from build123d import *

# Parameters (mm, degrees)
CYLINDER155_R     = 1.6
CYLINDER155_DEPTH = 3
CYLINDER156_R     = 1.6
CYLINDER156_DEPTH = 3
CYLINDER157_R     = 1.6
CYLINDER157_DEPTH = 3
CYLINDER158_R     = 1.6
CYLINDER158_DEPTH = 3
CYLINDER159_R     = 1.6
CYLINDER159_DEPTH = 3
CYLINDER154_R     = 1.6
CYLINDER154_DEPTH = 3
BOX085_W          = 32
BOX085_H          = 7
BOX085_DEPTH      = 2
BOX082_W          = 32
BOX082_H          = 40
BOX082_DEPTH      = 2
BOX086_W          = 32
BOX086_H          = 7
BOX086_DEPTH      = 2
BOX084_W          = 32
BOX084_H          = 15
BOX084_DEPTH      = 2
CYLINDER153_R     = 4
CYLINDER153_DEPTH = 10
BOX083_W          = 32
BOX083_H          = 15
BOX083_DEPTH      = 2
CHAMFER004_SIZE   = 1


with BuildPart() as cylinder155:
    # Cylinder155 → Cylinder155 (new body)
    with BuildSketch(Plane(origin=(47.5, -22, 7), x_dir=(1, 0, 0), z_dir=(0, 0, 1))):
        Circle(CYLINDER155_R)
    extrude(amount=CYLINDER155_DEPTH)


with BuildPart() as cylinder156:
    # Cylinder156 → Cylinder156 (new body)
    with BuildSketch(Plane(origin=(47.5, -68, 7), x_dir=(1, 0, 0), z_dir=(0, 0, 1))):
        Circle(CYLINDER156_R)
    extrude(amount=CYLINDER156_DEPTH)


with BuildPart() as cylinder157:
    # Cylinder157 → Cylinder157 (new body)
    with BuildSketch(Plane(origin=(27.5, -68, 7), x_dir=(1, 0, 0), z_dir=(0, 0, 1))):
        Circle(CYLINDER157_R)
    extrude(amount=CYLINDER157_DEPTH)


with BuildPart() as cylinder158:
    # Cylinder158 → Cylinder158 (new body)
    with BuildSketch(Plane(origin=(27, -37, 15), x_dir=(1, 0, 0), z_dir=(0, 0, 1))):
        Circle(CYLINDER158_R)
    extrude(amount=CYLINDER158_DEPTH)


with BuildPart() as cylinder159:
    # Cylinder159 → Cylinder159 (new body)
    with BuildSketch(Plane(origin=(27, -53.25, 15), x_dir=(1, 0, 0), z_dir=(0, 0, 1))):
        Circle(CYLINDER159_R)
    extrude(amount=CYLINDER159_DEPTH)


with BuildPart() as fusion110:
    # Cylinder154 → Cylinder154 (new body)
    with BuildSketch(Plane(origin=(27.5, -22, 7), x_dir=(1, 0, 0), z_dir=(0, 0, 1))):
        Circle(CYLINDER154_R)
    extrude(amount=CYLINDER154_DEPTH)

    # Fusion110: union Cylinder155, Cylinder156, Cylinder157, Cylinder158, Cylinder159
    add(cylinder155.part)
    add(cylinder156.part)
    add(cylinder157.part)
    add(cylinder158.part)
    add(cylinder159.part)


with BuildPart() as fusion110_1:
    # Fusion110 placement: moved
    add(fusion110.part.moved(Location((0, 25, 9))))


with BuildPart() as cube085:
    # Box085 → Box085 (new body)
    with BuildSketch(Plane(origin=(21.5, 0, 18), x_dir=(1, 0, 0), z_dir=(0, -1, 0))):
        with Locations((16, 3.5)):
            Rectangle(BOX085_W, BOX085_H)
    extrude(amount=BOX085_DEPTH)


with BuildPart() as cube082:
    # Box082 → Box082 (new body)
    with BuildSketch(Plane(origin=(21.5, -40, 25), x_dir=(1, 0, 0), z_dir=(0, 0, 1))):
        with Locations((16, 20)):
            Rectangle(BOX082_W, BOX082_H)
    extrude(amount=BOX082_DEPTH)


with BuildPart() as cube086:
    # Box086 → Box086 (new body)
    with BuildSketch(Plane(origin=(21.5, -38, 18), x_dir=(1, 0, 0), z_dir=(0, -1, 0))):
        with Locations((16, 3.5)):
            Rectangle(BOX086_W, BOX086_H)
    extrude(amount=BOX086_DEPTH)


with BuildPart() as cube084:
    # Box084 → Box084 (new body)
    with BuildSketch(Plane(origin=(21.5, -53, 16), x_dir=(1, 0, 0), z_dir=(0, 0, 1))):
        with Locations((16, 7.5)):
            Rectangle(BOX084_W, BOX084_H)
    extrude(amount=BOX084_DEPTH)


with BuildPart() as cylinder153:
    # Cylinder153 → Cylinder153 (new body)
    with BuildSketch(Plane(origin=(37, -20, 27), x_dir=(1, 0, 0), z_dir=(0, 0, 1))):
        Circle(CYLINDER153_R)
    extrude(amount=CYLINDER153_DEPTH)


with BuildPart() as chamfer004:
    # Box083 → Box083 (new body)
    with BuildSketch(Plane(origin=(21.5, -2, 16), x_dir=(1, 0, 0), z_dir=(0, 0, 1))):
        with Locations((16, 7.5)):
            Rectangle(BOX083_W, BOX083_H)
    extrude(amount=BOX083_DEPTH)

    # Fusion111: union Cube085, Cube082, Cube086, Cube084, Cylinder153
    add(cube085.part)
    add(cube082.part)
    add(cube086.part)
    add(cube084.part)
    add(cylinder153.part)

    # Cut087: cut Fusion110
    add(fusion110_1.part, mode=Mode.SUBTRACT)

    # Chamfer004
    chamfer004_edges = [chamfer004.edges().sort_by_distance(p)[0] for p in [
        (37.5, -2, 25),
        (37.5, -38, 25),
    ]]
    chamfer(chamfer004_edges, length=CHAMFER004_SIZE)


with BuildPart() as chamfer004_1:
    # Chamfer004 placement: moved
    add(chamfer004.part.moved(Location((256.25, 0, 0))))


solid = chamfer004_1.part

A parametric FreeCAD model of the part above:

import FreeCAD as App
import Part
import Sketcher

V = App.Vector
Q = App.Units.Quantity


def edges_at(feature, points):
    """Names of the edges that pass closest to the given points."""
    edges = feature.Shape.Edges
    near = lambda p: min(range(len(edges)), key=lambda i: edges[i].distToShape(Part.Vertex(*p))[0])
    return sorted({f"Edge{near(p) + 1}" for p in points})

doc = App.newDocument("Part")
body = doc.addObject("PartDesign::Body", "Body")

sketch1 = body.newObject("Sketcher::SketchObject", "Sketch")
sketch1.AttachmentSupport = (doc.getObject("XY_Plane"), [""])
sketch1.MapMode = "FlatFace"
sketch1.AttachmentOffset = App.Placement(V(0, 0, 7), App.Rotation())
sketch1.addGeometry(Part.Circle(V(47.5, -22, 0), V(0, 0, 1), 1.6), False)
sketch1.addConstraint(Sketcher.Constraint("Diameter", 0, Q("3.2 mm")))
sketch1.addConstraint(Sketcher.Constraint("DistanceY", 0, 3, -1, 1, Q("22 mm")))
sketch1.addConstraint(Sketcher.Constraint("DistanceX", -1, 1, 0, 3, Q("47.5 mm")))
pad1 = body.newObject("PartDesign::Pad", "Pad")
pad1.Profile = sketch1
pad1.Length = 3
body2 = doc.addObject("PartDesign::Body", "Body001")

sketch2 = body2.newObject("Sketcher::SketchObject", "Sketch001")
sketch2.AttachmentSupport = (doc.getObject("XY_Plane001"), [""])
sketch2.MapMode = "FlatFace"
sketch2.AttachmentOffset = App.Placement(V(0, 0, 7), App.Rotation())
sketch2.addGeometry(Part.Circle(V(47.5, -68, 0), V(0, 0, 1), 1.6), False)
sketch2.addConstraint(Sketcher.Constraint("Diameter", 0, Q("3.2 mm")))
sketch2.addConstraint(Sketcher.Constraint("DistanceY", 0, 3, -1, 1, Q("68 mm")))
sketch2.addConstraint(Sketcher.Constraint("DistanceX", -1, 1, 0, 3, Q("47.5 mm")))
pad2 = body2.newObject("PartDesign::Pad", "Pad001")
pad2.Profile = sketch2
pad2.Length = 3
body3 = doc.addObject("PartDesign::Body", "Body002")

sketch3 = body3.newObject("Sketcher::SketchObject", "Sketch002")
sketch3.AttachmentSupport = (doc.getObject("XY_Plane002"), [""])
sketch3.MapMode = "FlatFace"
sketch3.AttachmentOffset = App.Placement(V(0, 0, 7), App.Rotation())
sketch3.addGeometry(Part.Circle(V(27.5, -68, 0), V(0, 0, 1), 1.6), False)
sketch3.addConstraint(Sketcher.Constraint("Diameter", 0, Q("3.2 mm")))
sketch3.addConstraint(Sketcher.Constraint("DistanceY", 0, 3, -1, 1, Q("68 mm")))
sketch3.addConstraint(Sketcher.Constraint("DistanceX", -1, 1, 0, 3, Q("27.5 mm")))
pad3 = body3.newObject("PartDesign::Pad", "Pad002")
pad3.Profile = sketch3
pad3.Length = 3
body4 = doc.addObject("PartDesign::Body", "Body003")

sketch4 = body4.newObject("Sketcher::SketchObject", "Sketch003")
sketch4.AttachmentSupport = (doc.getObject("XY_Plane003"), [""])
sketch4.MapMode = "FlatFace"
sketch4.AttachmentOffset = App.Placement(V(0, 0, 15), App.Rotation())
sketch4.addGeometry(Part.Circle(V(27, -37, 0), V(0, 0, 1), 1.6), False)
sketch4.addConstraint(Sketcher.Constraint("Diameter", 0, Q("3.2 mm")))
sketch4.addConstraint(Sketcher.Constraint("DistanceX", -1, 1, 0, 3, Q("27 mm")))
sketch4.addConstraint(Sketcher.Constraint("DistanceY", 0, 3, -1, 1, Q("37 mm")))
pad4 = body4.newObject("PartDesign::Pad", "Pad003")
pad4.Profile = sketch4
pad4.Length = 3
body5 = doc.addObject("PartDesign::Body", "Body004")

sketch5 = body5.newObject("Sketcher::SketchObject", "Sketch004")
sketch5.AttachmentSupport = (doc.getObject("XY_Plane004"), [""])
sketch5.MapMode = "FlatFace"
sketch5.AttachmentOffset = App.Placement(V(0, 0, 15), App.Rotation())
sketch5.addGeometry(Part.Circle(V(27, -53.2, 0), V(0, 0, 1), 1.6), False)
sketch5.addConstraint(Sketcher.Constraint("Diameter", 0, Q("3.2 mm")))
sketch5.addConstraint(Sketcher.Constraint("DistanceX", -1, 1, 0, 3, Q("27 mm")))
sketch5.addConstraint(Sketcher.Constraint("DistanceY", 0, 3, -1, 1, Q("53.25 mm")))
pad5 = body5.newObject("PartDesign::Pad", "Pad004")
pad5.Profile = sketch5
pad5.Length = 3
body6 = doc.addObject("PartDesign::Body", "Body005")
body6.AllowCompound = True

sketch6 = body6.newObject("Sketcher::SketchObject", "Sketch005")
sketch6.AttachmentSupport = (doc.getObject("XY_Plane005"), [""])
sketch6.MapMode = "FlatFace"
sketch6.AttachmentOffset = App.Placement(V(0, 0, 7), App.Rotation())
sketch6.addGeometry(Part.Circle(V(27.5, -22, 0), V(0, 0, 1), 1.6), False)
sketch6.addConstraint(Sketcher.Constraint("Diameter", 0, Q("3.2 mm")))
sketch6.addConstraint(Sketcher.Constraint("DistanceY", 0, 3, -1, 1, Q("22 mm")))
sketch6.addConstraint(Sketcher.Constraint("DistanceX", -1, 1, 0, 3, Q("27.5 mm")))
pad6 = body6.newObject("PartDesign::Pad", "Pad005")
pad6.Profile = sketch6
pad6.Length = 3
doc.recompute()

boolean = body6.newObject("PartDesign::Boolean", "Boolean")
boolean.Type = "Fuse"
boolean.addObjects([body])
doc.recompute()

boolean2 = body6.newObject("PartDesign::Boolean", "Boolean001")
boolean2.Type = "Fuse"
boolean2.addObjects([body2])
doc.recompute()

boolean3 = body6.newObject("PartDesign::Boolean", "Boolean002")
boolean3.Type = "Fuse"
boolean3.addObjects([body3])
doc.recompute()

boolean4 = body6.newObject("PartDesign::Boolean", "Boolean003")
boolean4.Type = "Fuse"
boolean4.addObjects([body4])
doc.recompute()

boolean5 = body6.newObject("PartDesign::Boolean", "Boolean004")
boolean5.Type = "Fuse"
boolean5.addObjects([body5])
body7 = doc.addObject("PartDesign::Body", "Body006")
body7.AllowCompound = True
doc.recompute()

body6.Placement = App.Placement(V(0, 25, 9), App.Rotation(V(0, 0, 1), 0))
boolean6 = body7.newObject("PartDesign::Boolean", "Boolean005")
boolean6.Type = "Fuse"
boolean6.addObjects([body6])
body8 = doc.addObject("PartDesign::Body", "Body007")

sketch7 = body8.newObject("Sketcher::SketchObject", "Sketch006")
sketch7.AttachmentSupport = (doc.getObject("XZ_Plane007"), [""])
sketch7.MapMode = "FlatFace"
sketch7.addGeometry(Part.LineSegment(V(22, 25, 0), V(22, 18, 0)), False)
sketch7.addGeometry(Part.LineSegment(V(22, 18, 0), V(54, 18, 0)), False)
sketch7.addGeometry(Part.LineSegment(V(54, 18, 0), V(54, 25, 0)), False)
sketch7.addGeometry(Part.LineSegment(V(54, 25, 0), V(22, 25, 0)), False)
sketch7.addConstraint(Sketcher.Constraint("Coincident", 0, 2, 1, 1))
sketch7.addConstraint(Sketcher.Constraint("Coincident", 1, 2, 2, 1))
sketch7.addConstraint(Sketcher.Constraint("Coincident", 2, 2, 3, 1))
sketch7.addConstraint(Sketcher.Constraint("Coincident", 3, 2, 0, 1))
sketch7.addConstraint(Sketcher.Constraint("Vertical", 0))
sketch7.addConstraint(Sketcher.Constraint("Horizontal", 1))
sketch7.addConstraint(Sketcher.Constraint("Vertical", 2))
sketch7.addConstraint(Sketcher.Constraint("Horizontal", 3))
sketch7.addConstraint(Sketcher.Constraint("DistanceX", 1, 1, 1, 2, Q("32 mm")))
sketch7.addConstraint(Sketcher.Constraint("DistanceY", 0, 2, 0, 1, Q("7 mm")))
sketch7.addConstraint(Sketcher.Constraint("DistanceY", -1, 1, 0, 2, Q("18 mm")))
sketch7.addConstraint(Sketcher.Constraint("DistanceX", -1, 1, 0, 2, Q("21.5 mm")))
pad7 = body8.newObject("PartDesign::Pad", "Pad006")
pad7.Profile = sketch7
pad7.Length = 2
body9 = doc.addObject("PartDesign::Body", "Body008")

sketch8 = body9.newObject("Sketcher::SketchObject", "Sketch007")
sketch8.AttachmentSupport = (doc.getObject("XY_Plane008"), [""])
sketch8.MapMode = "FlatFace"
sketch8.AttachmentOffset = App.Placement(V(0, 0, 25), App.Rotation())
sketch8.addGeometry(Part.LineSegment(V(22, 0, 0), V(22, -40, 0)), False)
sketch8.addGeometry(Part.LineSegment(V(22, -40, 0), V(54, -40, 0)), False)
sketch8.addGeometry(Part.LineSegment(V(54, -40, 0), V(54, 0, 0)), False)
sketch8.addGeometry(Part.LineSegment(V(54, 0, 0), V(22, 0, 0)), False)
sketch8.addConstraint(Sketcher.Constraint("Coincident", 0, 2, 1, 1))
sketch8.addConstraint(Sketcher.Constraint("Coincident", 1, 2, 2, 1))
sketch8.addConstraint(Sketcher.Constraint("Coincident", 2, 2, 3, 1))
sketch8.addConstraint(Sketcher.Constraint("Coincident", 3, 2, 0, 1))
sketch8.addConstraint(Sketcher.Constraint("Vertical", 0))
sketch8.addConstraint(Sketcher.Constraint("Horizontal", 1))
sketch8.addConstraint(Sketcher.Constraint("Vertical", 2))
sketch8.addConstraint(Sketcher.Constraint("Horizontal", 3))
sketch8.addConstraint(Sketcher.Constraint("PointOnObject", 2, 2, -1))
sketch8.addConstraint(Sketcher.Constraint("DistanceX", 1, 1, 1, 2, Q("32 mm")))
sketch8.addConstraint(Sketcher.Constraint("DistanceY", 0, 2, 0, 1, Q("40 mm")))
sketch8.addConstraint(Sketcher.Constraint("DistanceX", -1, 1, 0, 2, Q("21.5 mm")))
pad8 = body9.newObject("PartDesign::Pad", "Pad007")
pad8.Profile = sketch8
pad8.Length = 2
body10 = doc.addObject("PartDesign::Body", "Body009")

sketch9 = body10.newObject("Sketcher::SketchObject", "Sketch008")
sketch9.AttachmentSupport = (doc.getObject("XZ_Plane009"), [""])
sketch9.MapMode = "FlatFace"
sketch9.AttachmentOffset = App.Placement(V(0, 0, 38), App.Rotation())
sketch9.addGeometry(Part.LineSegment(V(22, 25, 0), V(22, 18, 0)), False)
sketch9.addGeometry(Part.LineSegment(V(22, 18, 0), V(54, 18, 0)), False)
sketch9.addGeometry(Part.LineSegment(V(54, 18, 0), V(54, 25, 0)), False)
sketch9.addGeometry(Part.LineSegment(V(54, 25, 0), V(22, 25, 0)), False)
sketch9.addConstraint(Sketcher.Constraint("Coincident", 0, 2, 1, 1))
sketch9.addConstraint(Sketcher.Constraint("Coincident", 1, 2, 2, 1))
sketch9.addConstraint(Sketcher.Constraint("Coincident", 2, 2, 3, 1))
sketch9.addConstraint(Sketcher.Constraint("Coincident", 3, 2, 0, 1))
sketch9.addConstraint(Sketcher.Constraint("Vertical", 0))
sketch9.addConstraint(Sketcher.Constraint("Horizontal", 1))
sketch9.addConstraint(Sketcher.Constraint("Vertical", 2))
sketch9.addConstraint(Sketcher.Constraint("Horizontal", 3))
sketch9.addConstraint(Sketcher.Constraint("DistanceX", 1, 1, 1, 2, Q("32 mm")))
sketch9.addConstraint(Sketcher.Constraint("DistanceY", 0, 2, 0, 1, Q("7 mm")))
sketch9.addConstraint(Sketcher.Constraint("DistanceY", -1, 1, 0, 2, Q("18 mm")))
sketch9.addConstraint(Sketcher.Constraint("DistanceX", -1, 1, 0, 2, Q("21.5 mm")))
pad9 = body10.newObject("PartDesign::Pad", "Pad008")
pad9.Profile = sketch9
pad9.Length = 2
body11 = doc.addObject("PartDesign::Body", "Body010")

sketch10 = body11.newObject("Sketcher::SketchObject", "Sketch009")
sketch10.AttachmentSupport = (doc.getObject("XY_Plane010"), [""])
sketch10.MapMode = "FlatFace"
sketch10.AttachmentOffset = App.Placement(V(0, 0, 16), App.Rotation())
sketch10.addGeometry(Part.LineSegment(V(22, -38, 0), V(22, -53, 0)), False)
sketch10.addGeometry(Part.LineSegment(V(22, -53, 0), V(54, -53, 0)), False)
sketch10.addGeometry(Part.LineSegment(V(54, -53, 0), V(54, -38, 0)), False)
sketch10.addGeometry(Part.LineSegment(V(54, -38, 0), V(22, -38, 0)), False)
sketch10.addConstraint(Sketcher.Constraint("Coincident", 0, 2, 1, 1))
sketch10.addConstraint(Sketcher.Constraint("Coincident", 1, 2, 2, 1))
sketch10.addConstraint(Sketcher.Constraint("Coincident", 2, 2, 3, 1))
sketch10.addConstraint(Sketcher.Constraint("Coincident", 3, 2, 0, 1))
sketch10.addConstraint(Sketcher.Constraint("Vertical", 0))
sketch10.addConstraint(Sketcher.Constraint("Horizontal", 1))
sketch10.addConstraint(Sketcher.Constraint("Vertical", 2))
sketch10.addConstraint(Sketcher.Constraint("Horizontal", 3))
sketch10.addConstraint(Sketcher.Constraint("DistanceX", 1, 1, 1, 2, Q("32 mm")))
sketch10.addConstraint(Sketcher.Constraint("DistanceY", 0, 2, 0, 1, Q("15 mm")))
sketch10.addConstraint(Sketcher.Constraint("DistanceY", 0, 2, -1, 1, Q("53 mm")))
sketch10.addConstraint(Sketcher.Constraint("DistanceX", -1, 1, 0, 2, Q("21.5 mm")))
pad10 = body11.newObject("PartDesign::Pad", "Pad009")
pad10.Profile = sketch10
pad10.Length = 2
body12 = doc.addObject("PartDesign::Body", "Body011")

sketch11 = body12.newObject("Sketcher::SketchObject", "Sketch010")
sketch11.AttachmentSupport = (doc.getObject("XY_Plane011"), [""])
sketch11.MapMode = "FlatFace"
sketch11.AttachmentOffset = App.Placement(V(0, 0, 27), App.Rotation())
sketch11.addGeometry(Part.Circle(V(37, -20, 0), V(0, 0, 1), 4), False)
sketch11.addConstraint(Sketcher.Constraint("Diameter", 0, Q("8 mm")))
sketch11.addConstraint(Sketcher.Constraint("DistanceX", -1, 1, 0, 3, Q("37 mm")))
sketch11.addConstraint(Sketcher.Constraint("DistanceY", 0, 3, -1, 1, Q("20 mm")))
pad11 = body12.newObject("PartDesign::Pad", "Pad010")
pad11.Profile = sketch11
pad11.Length = 10
body13 = doc.addObject("PartDesign::Body", "Body012")

sketch12 = body13.newObject("Sketcher::SketchObject", "Sketch011")
sketch12.AttachmentSupport = (doc.getObject("XY_Plane012"), [""])
sketch12.MapMode = "FlatFace"
sketch12.AttachmentOffset = App.Placement(V(0, 0, 16), App.Rotation())
sketch12.addGeometry(Part.LineSegment(V(22, 13, 0), V(22, -2, 0)), False)
sketch12.addGeometry(Part.LineSegment(V(22, -2, 0), V(54, -2, 0)), False)
sketch12.addGeometry(Part.LineSegment(V(54, -2, 0), V(54, 13, 0)), False)
sketch12.addGeometry(Part.LineSegment(V(54, 13, 0), V(22, 13, 0)), False)
sketch12.addConstraint(Sketcher.Constraint("Coincident", 0, 2, 1, 1))
sketch12.addConstraint(Sketcher.Constraint("Coincident", 1, 2, 2, 1))
sketch12.addConstraint(Sketcher.Constraint("Coincident", 2, 2, 3, 1))
sketch12.addConstraint(Sketcher.Constraint("Coincident", 3, 2, 0, 1))
sketch12.addConstraint(Sketcher.Constraint("Vertical", 0))
sketch12.addConstraint(Sketcher.Constraint("Horizontal", 1))
sketch12.addConstraint(Sketcher.Constraint("Vertical", 2))
sketch12.addConstraint(Sketcher.Constraint("Horizontal", 3))
sketch12.addConstraint(Sketcher.Constraint("DistanceX", 1, 1, 1, 2, Q("32 mm")))
sketch12.addConstraint(Sketcher.Constraint("DistanceY", 0, 2, 0, 1, Q("15 mm")))
sketch12.addConstraint(Sketcher.Constraint("DistanceY", 0, 2, -1, 1, Q("2 mm")))
sketch12.addConstraint(Sketcher.Constraint("DistanceX", -1, 1, 0, 2, Q("21.5 mm")))
pad12 = body13.newObject("PartDesign::Pad", "Pad011")
pad12.Profile = sketch12
pad12.Length = 2
doc.recompute()

boolean7 = body13.newObject("PartDesign::Boolean", "Boolean006")
boolean7.Type = "Fuse"
boolean7.addObjects([body8])
doc.recompute()

boolean8 = body13.newObject("PartDesign::Boolean", "Boolean007")
boolean8.Type = "Fuse"
boolean8.addObjects([body9])
doc.recompute()

boolean9 = body13.newObject("PartDesign::Boolean", "Boolean008")
boolean9.Type = "Fuse"
boolean9.addObjects([body10])
doc.recompute()

boolean10 = body13.newObject("PartDesign::Boolean", "Boolean009")
boolean10.Type = "Fuse"
boolean10.addObjects([body11])
doc.recompute()

boolean11 = body13.newObject("PartDesign::Boolean", "Boolean010")
boolean11.Type = "Fuse"
boolean11.addObjects([body12])
doc.recompute()

boolean12 = body13.newObject("PartDesign::Boolean", "Boolean011")
boolean12.Type = "Cut"
boolean12.addObjects([body7])
doc.recompute()

chamfer = body13.newObject("PartDesign::Chamfer", "Chamfer")
chamfer.Base = (boolean12, edges_at(boolean12, [(37.5, -2, 25), (37.5, -38, 25)]))
chamfer.Size = 1
body14 = doc.addObject("PartDesign::Body", "Body013")
doc.recompute()

body13.Placement = App.Placement(V(256.25, 0, 0), App.Rotation(V(0, 0, 1), 0))
boolean13 = body14.newObject("PartDesign::Boolean", "Boolean012")
boolean13.Type = "Fuse"
boolean13.addObjects([body13])

doc.recompute()
